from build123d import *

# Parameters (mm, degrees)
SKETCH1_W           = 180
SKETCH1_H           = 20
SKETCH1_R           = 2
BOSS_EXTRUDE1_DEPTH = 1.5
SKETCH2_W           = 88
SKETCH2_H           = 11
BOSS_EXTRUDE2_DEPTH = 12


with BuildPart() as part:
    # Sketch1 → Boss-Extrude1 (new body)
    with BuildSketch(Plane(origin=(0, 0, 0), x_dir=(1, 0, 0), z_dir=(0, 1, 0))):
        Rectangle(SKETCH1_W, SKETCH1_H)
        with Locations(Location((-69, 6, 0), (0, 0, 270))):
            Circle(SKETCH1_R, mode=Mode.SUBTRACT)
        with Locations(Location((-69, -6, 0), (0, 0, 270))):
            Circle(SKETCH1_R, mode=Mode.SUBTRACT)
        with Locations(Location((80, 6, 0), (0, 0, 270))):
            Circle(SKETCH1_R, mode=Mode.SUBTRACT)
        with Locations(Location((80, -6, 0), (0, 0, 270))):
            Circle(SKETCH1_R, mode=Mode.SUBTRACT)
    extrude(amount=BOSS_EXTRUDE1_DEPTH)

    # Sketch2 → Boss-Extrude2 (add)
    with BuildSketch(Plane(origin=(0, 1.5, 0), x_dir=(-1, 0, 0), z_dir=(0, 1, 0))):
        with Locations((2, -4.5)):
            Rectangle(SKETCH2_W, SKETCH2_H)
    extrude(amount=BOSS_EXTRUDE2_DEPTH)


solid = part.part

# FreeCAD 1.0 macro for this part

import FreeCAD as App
import Part
import Sketcher
from FreeCAD import Vector
Q = App.Units.Quantity

doc = App.newDocument("Part")
params = doc.addObject("Spreadsheet::Sheet", "Params")
for row, (alias, value) in enumerate([
    ("sketch1_diameter", "4 mm"),
    ("sketch1_width", "180 mm"),
    ("sketch1_height", "20 mm"),
    ("pad1_length", "1.5 mm"),
    ("sketch2_width", "88 mm"),
    ("sketch2_height", "11 mm"),
    ("pad2_length", "12 mm"),
], start=1):
    params.set(f"A{row}", alias)
    params.set(f"B{row}", "=" + value)
    params.setAlias(f"B{row}", alias)

body = doc.addObject("PartDesign::Body", "Body")

sketch1 = body.newObject("Sketcher::SketchObject", "Sketch")
sketch1.AttachmentSupport = (doc.getObject("XZ_Plane"), [""])
sketch1.MapMode = "FlatFace"
sketch1.addGeometry(Part.LineSegment(Vector(-90, -10, 0), Vector(-90, 10, 0)), False)
sketch1.addGeometry(Part.LineSegment(Vector(-90, 10, 0), Vector(90, 10, 0)), False)
sketch1.addGeometry(Part.LineSegment(Vector(90, 10, 0), Vector(90, -10, 0)), False)
sketch1.addGeometry(Part.LineSegment(Vector(90, -10, 0), Vector(-90, -10, 0)), False)
sketch1.addGeometry(Part.Circle(Vector(-69, 6, 0), Vector(0, 0, 1), 2), False)
sketch1.addGeometry(Part.Circle(Vector(80, 6, 0), Vector(0, 0, 1), 2), False)
sketch1.addGeometry(Part.Circle(Vector(-69, -6, 0), Vector(0, 0, 1), 2), False)
sketch1.addGeometry(Part.Circle(Vector(80, -6, 0), Vector(0, 0, 1), 2), False)
sketch1.addConstraint(Sketcher.Constraint("Coincident", 0, 2, 1, 1))
sketch1.addConstraint(Sketcher.Constraint("Coincident", 1, 2, 2, 1))
sketch1.addConstraint(Sketcher.Constraint("Coincident", 2, 2, 3, 1))
sketch1.addConstraint(Sketcher.Constraint("Coincident", 3, 2, 0, 1))
sketch1.addConstraint(Sketcher.Constraint("Vertical", 0))
sketch1.addConstraint(Sketcher.Constraint("Horizontal", 1))
sketch1.addConstraint(Sketcher.Constraint("Vertical", 2))
sketch1.addConstraint(Sketcher.Constraint("Horizontal", 3))
sketch1.addConstraint(Sketcher.Constraint("Equal", 4, 5))
sketch1.addConstraint(Sketcher.Constraint("Equal", 5, 6))
sketch1.addConstraint(Sketcher.Constraint("Equal", 6, 7))
sketch1.addConstraint(Sketcher.Constraint("Symmetric", 0, 2, 2, 2, -1, 1))
sketch1.addConstraint(Sketcher.Constraint("Symmetric", 4, 3, 6, 3, -1))
sketch1.addConstraint(Sketcher.Constraint("Symmetric", 5, 3, 7, 3, -1))
sketch1.addConstraint(Sketcher.Constraint("Horizontal", 4, 3, 5, 3))
sketch1.addConstraint(Sketcher.Constraint("Diameter", 4, Q("4 mm")))
sketch1.addConstraint(Sketcher.Constraint("DistanceX", 1, 1, 1, 2, Q("180 mm")))
sketch1.addConstraint(Sketcher.Constraint("DistanceY", 0, 1, 0, 2, Q("20 mm")))
sketch1.addConstraint(Sketcher.Constraint("DistanceX", 4, 3, -1, 1, Q("69 mm")))
sketch1.addConstraint(Sketcher.Constraint("DistanceY", -1, 1, 4, 3, Q("6 mm")))
sketch1.addConstraint(Sketcher.Constraint("DistanceX", -1, 1, 5, 3, Q("80 mm")))
sketch1.setExpression("Constraints[15]", "Params.sketch1_diameter")
sketch1.setExpression("Constraints[16]", "Params.sketch1_width")
sketch1.setExpression("Constraints[17]", "Params.sketch1_height")
pad1 = body.newObject("PartDesign::Pad", "Pad")
pad1.Profile = sketch1
pad1.setExpression("Length", "Params.pad1_length")
pad1.Reversed = True

sketch2 = body.newObject("Sketcher::SketchObject", "Sketch001")
sketch2.AttachmentSupport = (doc.getObject("XZ_Plane"), [""])
sketch2.MapMode = "FlatFace"
sketch2.AttachmentOffset = App.Placement(Vector(0, 0, -1.5), App.Rotation())
sketch2.addGeometry(Part.LineSegment(Vector(42, 1, 0), Vector(42, -10, 0)), False)
sketch2.addGeometry(Part.LineSegment(Vector(42, -10, 0), Vector(-46, -10, 0)), False)
sketch2.addGeometry(Part.LineSegment(Vector(-46, -10, 0), Vector(-46, 1, 0)), False)
sketch2.addGeometry(Part.LineSegment(Vector(-46, 1, 0), Vector(42, 1, 0)), False)
sketch2.addConstraint(Sketcher.Constraint("Coincident", 0, 2, 1, 1))
sketch2.addConstraint(Sketcher.Constraint("Coincident", 1, 2, 2, 1))
sketch2.addConstraint(Sketcher.Constraint("Coincident", 2, 2, 3, 1))
sketch2.addConstraint(Sketcher.Constraint("Coincident", 3, 2, 0, 1))
sketch2.addConstraint(Sketcher.Constraint("Vertical", 0))
sketch2.addConstraint(Sketcher.Constraint("Horizontal", 1))
sketch2.addConstraint(Sketcher.Constraint("Vertical", 2))
sketch2.addConstraint(Sketcher.Constraint("Horizontal", 3))
sketch2.addConstraint(Sketcher.Constraint("DistanceX", 1, 2, 1, 1, Q("88 mm")))
sketch2.addConstraint(Sketcher.Constraint("DistanceY", 0, 2, 0, 1, Q("11 mm")))
sketch2.addConstraint(Sketcher.Constraint("DistanceX", -1, 1, 0, 2, Q("42 mm")))
sketch2.addConstraint(Sketcher.Constraint("DistanceY", 0, 2, -1, 1, Q("10 mm")))
sketch2.setExpression("Constraints[8]", "Params.sketch2_width")
sketch2.setExpression("Constraints[9]", "Params.sketch2_height")
pad2 = body.newObject("PartDesign::Pad", "Pad001")
pad2.Profile = sketch2
pad2.setExpression("Length", "Params.pad2_length")
pad2.Reversed = True

doc.recompute()
